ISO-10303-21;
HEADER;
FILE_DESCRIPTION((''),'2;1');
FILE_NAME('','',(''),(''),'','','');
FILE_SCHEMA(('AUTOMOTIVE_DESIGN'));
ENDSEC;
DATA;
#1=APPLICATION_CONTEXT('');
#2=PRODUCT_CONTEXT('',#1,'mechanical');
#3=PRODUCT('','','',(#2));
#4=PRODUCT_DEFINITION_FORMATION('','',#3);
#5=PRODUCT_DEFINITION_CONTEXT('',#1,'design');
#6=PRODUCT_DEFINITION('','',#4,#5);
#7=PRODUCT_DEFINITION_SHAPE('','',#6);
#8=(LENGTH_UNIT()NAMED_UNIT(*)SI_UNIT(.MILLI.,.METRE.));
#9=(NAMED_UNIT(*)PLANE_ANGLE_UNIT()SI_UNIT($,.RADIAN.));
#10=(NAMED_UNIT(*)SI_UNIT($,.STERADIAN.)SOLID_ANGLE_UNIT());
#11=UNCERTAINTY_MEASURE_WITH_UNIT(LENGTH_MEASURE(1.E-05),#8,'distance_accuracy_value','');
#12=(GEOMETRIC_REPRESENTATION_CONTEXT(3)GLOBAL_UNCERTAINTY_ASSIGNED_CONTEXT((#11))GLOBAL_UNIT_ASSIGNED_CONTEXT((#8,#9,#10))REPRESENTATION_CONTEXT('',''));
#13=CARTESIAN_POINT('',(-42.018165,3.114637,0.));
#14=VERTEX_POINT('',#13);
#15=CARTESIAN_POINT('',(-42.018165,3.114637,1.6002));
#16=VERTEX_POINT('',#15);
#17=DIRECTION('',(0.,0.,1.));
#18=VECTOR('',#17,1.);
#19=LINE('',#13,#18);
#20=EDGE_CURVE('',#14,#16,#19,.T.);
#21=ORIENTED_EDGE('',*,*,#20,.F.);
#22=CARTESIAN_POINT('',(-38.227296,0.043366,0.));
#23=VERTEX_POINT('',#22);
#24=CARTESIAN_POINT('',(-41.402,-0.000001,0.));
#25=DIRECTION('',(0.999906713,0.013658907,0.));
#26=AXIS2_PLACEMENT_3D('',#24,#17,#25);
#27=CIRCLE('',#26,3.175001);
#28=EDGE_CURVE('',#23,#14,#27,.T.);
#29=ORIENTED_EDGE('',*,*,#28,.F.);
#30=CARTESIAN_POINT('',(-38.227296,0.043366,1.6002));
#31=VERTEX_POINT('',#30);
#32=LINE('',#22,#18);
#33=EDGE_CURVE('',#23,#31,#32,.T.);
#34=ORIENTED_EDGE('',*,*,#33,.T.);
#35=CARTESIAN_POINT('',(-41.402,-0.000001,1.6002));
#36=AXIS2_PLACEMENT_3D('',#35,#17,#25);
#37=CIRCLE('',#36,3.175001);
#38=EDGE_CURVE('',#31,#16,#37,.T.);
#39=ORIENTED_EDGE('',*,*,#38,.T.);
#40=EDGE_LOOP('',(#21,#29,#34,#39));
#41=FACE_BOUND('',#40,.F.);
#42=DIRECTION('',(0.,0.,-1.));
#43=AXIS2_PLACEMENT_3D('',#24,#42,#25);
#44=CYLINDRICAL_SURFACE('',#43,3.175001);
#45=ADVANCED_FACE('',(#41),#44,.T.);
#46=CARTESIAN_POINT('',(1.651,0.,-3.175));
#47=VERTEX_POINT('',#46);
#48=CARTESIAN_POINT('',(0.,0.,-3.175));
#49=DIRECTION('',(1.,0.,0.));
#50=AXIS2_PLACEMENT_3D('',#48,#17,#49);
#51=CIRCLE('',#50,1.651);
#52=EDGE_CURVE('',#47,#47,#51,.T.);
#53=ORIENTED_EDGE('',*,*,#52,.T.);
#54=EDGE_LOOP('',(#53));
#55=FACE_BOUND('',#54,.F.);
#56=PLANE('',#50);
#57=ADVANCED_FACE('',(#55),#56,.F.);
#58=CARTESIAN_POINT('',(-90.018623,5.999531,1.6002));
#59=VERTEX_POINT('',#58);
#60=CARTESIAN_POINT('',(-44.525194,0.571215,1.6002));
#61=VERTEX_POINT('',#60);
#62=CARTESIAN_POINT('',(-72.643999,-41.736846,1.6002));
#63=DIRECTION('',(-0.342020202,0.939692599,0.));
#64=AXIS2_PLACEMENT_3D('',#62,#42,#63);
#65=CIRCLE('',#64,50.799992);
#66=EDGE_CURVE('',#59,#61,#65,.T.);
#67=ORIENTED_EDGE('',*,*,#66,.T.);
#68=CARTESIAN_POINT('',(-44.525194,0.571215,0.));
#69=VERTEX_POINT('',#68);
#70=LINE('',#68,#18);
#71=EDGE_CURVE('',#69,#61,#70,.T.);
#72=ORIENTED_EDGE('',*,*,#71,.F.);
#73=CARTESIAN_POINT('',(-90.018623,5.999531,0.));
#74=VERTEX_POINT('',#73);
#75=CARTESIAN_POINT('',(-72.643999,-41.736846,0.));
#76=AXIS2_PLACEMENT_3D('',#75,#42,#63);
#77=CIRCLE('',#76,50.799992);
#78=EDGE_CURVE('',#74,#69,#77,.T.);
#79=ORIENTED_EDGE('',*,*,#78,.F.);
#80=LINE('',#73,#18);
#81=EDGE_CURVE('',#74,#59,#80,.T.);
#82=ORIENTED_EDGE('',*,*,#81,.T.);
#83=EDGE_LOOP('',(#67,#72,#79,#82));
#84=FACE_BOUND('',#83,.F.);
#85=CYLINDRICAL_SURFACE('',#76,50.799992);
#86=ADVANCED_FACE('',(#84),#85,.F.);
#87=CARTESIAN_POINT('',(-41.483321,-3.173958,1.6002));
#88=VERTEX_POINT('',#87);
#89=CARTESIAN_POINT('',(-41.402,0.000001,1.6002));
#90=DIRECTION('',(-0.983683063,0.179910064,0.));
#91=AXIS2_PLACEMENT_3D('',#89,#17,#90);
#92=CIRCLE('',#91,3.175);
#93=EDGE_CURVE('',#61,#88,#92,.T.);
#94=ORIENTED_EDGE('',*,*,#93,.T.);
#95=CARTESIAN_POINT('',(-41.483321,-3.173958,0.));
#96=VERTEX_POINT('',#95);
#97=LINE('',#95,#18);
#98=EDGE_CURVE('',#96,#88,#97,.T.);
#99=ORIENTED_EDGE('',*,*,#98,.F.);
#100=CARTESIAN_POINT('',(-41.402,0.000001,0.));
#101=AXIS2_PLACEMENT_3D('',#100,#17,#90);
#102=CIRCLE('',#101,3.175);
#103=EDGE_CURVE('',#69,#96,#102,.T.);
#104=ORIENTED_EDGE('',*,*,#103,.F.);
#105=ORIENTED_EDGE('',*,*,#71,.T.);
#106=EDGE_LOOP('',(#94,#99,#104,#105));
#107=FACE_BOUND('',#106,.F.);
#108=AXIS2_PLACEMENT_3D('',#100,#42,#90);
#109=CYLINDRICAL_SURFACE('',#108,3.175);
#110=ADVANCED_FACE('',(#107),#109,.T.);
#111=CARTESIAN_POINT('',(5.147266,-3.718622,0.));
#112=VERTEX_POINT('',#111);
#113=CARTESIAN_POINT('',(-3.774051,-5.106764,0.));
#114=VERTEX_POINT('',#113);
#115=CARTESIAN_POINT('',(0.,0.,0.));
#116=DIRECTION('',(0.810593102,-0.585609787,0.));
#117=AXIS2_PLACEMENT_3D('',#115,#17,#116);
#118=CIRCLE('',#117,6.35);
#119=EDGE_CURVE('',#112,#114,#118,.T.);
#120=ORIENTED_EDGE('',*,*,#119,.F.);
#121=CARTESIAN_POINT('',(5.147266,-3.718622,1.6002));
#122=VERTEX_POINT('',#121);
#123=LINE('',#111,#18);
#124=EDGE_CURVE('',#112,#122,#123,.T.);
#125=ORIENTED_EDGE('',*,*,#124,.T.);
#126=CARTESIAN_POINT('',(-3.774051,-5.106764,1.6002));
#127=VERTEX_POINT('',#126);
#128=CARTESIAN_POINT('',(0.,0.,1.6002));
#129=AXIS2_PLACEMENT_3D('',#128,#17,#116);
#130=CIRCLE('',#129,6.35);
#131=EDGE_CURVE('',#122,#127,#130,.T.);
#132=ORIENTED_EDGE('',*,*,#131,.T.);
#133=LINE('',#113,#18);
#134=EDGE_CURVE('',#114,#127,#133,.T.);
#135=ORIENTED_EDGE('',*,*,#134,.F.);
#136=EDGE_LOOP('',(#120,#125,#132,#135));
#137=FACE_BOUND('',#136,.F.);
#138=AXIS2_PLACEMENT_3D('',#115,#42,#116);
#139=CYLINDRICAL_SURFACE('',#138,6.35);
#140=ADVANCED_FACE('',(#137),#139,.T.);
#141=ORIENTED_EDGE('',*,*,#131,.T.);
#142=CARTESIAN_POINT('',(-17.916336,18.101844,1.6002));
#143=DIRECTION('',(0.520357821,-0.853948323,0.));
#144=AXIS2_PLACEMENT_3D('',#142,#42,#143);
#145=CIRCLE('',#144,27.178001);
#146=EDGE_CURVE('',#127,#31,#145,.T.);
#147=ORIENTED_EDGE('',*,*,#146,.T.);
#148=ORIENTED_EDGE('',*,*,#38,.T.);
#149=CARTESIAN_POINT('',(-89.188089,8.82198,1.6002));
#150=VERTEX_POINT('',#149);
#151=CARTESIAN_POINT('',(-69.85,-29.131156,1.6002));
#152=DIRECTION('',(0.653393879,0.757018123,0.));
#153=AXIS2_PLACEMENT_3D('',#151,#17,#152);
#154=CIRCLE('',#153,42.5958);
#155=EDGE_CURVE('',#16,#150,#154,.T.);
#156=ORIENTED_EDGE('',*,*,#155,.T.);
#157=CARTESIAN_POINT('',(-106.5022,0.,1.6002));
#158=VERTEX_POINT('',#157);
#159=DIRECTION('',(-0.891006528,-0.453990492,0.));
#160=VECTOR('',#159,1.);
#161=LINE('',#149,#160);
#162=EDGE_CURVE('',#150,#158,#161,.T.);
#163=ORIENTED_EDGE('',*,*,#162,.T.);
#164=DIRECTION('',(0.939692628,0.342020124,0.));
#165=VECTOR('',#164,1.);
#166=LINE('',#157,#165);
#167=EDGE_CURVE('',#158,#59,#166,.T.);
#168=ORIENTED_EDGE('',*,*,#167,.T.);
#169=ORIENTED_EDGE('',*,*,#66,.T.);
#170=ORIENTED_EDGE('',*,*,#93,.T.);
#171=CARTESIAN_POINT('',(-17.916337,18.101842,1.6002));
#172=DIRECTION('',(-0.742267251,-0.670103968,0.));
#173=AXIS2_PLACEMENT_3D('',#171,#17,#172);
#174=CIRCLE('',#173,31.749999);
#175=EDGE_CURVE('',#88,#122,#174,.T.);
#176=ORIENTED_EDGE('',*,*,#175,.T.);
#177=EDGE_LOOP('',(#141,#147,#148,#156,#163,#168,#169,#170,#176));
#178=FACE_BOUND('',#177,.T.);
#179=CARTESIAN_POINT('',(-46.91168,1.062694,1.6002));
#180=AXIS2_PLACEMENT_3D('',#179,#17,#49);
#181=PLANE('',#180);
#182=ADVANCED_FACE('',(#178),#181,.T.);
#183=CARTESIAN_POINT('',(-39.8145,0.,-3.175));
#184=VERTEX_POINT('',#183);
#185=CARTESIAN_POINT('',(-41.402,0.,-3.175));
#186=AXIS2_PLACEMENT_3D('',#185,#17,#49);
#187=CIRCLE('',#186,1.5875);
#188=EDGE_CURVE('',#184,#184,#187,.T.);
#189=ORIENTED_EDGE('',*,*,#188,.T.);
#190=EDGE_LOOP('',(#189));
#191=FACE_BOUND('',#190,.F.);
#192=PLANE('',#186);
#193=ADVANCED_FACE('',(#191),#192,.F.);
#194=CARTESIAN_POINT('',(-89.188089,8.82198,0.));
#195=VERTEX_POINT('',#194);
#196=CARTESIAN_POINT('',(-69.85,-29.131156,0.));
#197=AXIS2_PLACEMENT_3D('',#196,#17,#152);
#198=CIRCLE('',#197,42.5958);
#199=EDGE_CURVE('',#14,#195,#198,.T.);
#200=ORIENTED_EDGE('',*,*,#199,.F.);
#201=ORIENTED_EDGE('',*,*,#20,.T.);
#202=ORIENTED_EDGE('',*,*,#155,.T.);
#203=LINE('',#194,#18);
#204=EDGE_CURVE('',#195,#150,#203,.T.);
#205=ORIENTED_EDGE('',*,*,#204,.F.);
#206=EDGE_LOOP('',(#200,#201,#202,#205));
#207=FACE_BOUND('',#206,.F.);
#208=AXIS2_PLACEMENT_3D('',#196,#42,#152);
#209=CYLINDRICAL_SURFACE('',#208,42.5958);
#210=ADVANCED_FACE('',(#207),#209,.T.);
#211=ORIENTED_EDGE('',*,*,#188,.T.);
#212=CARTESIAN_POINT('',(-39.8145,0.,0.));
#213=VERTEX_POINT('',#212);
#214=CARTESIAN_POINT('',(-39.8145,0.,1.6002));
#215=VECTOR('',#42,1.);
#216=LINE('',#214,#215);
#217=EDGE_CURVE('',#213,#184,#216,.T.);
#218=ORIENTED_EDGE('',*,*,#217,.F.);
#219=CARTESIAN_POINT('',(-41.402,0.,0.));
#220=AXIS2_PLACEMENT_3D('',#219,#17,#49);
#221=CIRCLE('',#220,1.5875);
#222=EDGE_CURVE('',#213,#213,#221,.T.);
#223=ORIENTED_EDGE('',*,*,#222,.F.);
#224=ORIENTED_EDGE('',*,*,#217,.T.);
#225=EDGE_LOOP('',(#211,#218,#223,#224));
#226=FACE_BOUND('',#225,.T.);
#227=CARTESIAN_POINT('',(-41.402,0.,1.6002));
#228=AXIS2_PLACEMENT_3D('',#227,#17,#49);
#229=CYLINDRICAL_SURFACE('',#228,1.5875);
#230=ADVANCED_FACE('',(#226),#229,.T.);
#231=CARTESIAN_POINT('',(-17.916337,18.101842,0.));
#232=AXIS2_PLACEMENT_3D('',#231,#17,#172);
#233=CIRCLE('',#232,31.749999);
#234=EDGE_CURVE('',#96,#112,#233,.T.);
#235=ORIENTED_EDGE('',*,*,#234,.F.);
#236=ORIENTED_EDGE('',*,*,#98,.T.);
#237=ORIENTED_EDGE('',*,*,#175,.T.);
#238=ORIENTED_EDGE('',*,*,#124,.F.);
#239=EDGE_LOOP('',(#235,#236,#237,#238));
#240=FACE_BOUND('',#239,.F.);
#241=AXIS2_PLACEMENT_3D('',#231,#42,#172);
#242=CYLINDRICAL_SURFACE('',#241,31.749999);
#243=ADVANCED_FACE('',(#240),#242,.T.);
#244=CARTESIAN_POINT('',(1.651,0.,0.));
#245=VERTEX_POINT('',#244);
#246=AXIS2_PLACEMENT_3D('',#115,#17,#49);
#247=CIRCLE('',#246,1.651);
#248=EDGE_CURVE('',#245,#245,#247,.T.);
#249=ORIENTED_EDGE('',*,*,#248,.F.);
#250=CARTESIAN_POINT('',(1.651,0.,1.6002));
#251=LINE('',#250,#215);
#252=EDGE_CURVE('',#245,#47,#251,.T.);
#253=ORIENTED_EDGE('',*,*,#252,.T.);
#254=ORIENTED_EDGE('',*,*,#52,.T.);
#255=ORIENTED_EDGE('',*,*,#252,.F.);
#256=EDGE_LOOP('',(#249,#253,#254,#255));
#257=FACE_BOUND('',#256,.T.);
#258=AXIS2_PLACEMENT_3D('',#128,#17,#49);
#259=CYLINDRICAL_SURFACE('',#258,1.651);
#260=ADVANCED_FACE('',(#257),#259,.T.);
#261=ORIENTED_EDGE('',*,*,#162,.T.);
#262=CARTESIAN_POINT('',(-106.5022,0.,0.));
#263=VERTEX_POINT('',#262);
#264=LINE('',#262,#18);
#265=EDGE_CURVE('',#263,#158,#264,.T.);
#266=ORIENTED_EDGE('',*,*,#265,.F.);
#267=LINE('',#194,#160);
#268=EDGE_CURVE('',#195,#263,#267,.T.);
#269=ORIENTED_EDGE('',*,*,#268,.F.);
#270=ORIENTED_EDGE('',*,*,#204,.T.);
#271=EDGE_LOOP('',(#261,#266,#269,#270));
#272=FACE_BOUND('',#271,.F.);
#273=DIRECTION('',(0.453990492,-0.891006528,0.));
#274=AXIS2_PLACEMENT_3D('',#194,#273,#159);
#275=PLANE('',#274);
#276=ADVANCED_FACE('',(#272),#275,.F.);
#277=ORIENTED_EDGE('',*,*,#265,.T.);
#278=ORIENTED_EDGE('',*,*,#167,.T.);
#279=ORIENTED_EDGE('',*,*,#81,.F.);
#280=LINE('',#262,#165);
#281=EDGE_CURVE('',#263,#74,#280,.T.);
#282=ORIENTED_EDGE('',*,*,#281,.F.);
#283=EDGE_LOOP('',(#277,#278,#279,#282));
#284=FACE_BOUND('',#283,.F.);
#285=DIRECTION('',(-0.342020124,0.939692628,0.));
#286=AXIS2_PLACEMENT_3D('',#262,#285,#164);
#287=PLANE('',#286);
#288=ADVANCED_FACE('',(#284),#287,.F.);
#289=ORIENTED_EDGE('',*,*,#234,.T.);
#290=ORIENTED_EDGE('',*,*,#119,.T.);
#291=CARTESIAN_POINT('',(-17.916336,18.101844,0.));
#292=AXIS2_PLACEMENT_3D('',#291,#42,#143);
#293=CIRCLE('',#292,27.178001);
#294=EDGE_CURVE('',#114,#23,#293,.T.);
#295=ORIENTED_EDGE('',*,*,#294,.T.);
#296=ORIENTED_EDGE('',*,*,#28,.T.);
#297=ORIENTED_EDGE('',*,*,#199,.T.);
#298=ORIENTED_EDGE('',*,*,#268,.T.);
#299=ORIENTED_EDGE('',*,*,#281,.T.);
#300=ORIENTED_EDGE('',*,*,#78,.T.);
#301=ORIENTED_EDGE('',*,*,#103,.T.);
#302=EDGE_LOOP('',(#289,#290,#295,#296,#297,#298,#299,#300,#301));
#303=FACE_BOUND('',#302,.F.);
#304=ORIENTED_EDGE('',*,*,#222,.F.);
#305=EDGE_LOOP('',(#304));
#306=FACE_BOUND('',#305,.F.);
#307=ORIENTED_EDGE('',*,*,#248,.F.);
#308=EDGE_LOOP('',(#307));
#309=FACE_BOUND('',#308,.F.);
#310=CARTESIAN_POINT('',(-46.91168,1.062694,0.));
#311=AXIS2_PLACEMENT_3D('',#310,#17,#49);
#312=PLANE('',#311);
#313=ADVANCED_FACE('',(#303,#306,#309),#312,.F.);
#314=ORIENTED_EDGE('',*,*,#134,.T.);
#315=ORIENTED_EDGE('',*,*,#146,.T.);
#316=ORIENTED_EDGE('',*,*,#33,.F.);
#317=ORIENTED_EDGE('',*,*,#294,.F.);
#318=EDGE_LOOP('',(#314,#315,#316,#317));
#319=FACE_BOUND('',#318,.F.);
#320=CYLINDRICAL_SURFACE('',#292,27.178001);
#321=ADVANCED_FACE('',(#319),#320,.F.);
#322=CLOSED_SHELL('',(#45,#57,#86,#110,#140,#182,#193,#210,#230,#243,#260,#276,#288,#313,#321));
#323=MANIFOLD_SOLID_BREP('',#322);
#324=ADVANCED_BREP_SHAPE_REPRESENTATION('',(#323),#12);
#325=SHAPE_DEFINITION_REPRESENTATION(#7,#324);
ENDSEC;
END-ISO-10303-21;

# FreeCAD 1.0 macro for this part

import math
import FreeCAD as App
import Part
import Sketcher

V = App.Vector
Q = App.Units.Quantity

doc = App.newDocument("Part")
params = doc.addObject("Spreadsheet::Sheet", "Params")
for row, (alias, value) in enumerate([
    ("sketch1_diameter", "0.13 in"),
    ("sketch1_radius", "1.07 in"),
    ("sketch1_radius2", "1.25 in"),
    ("sketch1_radius3", "0.25 in"),
    ("sketch1_diameter2", "0.125 in"),
    ("pad1_length", "0.063 in"),
    ("sketch2_diameter", "0.13 in"),
    ("sketch2_diameter2", "0.125 in"),
    ("pad2_length", "0.188 in"),
], start=1):
    params.set(f"A{row}", alias)
    params.set(f"B{row}", "=" + value)
    params.setAlias(f"B{row}", alias)

body = doc.addObject("PartDesign::Body", "Body")

# Sketch on XY plane
sketch1 = body.newObject("Sketcher::SketchObject", "Sketch")
sketch1.AttachmentSupport = (doc.getObject("XY_Plane"), [""])
sketch1.MapMode = "FlatFace"
sketch1.addGeometry(Part.ArcOfCircle(Part.Circle(V(-17.9, 18.1, 0), V(0, 0, 1), 27.2), math.radians(-138), math.radians(-59)), False)
sketch1.addGeometry(Part.ArcOfCircle(Part.Circle(V(-41.4, 0, 0), V(0, 0, 1), 3.2), math.radians(1), math.radians(101)), False)
sketch1.addGeometry(Part.ArcOfCircle(Part.Circle(V(-69.9, -29.1, 0), V(0, 0, 1), 42.6), math.radians(49), math.radians(117)), False)
sketch1.addGeometry(Part.LineSegment(V(-89.2, 8.8, 0), V(-106.5, 0, 0)), False)
sketch1.addGeometry(Part.LineSegment(V(-106.5, 0, 0), V(-90, 6, 0)), False)
sketch1.addGeometry(Part.ArcOfCircle(Part.Circle(V(-72.6, -41.7, 0), V(0, 0, 1), 50.8), math.radians(56), math.radians(110)), False)
sketch1.addGeometry(Part.ArcOfCircle(Part.Circle(V(-41.4, 0, 0), V(0, 0, 1), 3.2), math.radians(170), math.radians(269)), False)
sketch1.addGeometry(Part.ArcOfCircle(Part.Circle(V(-17.9, 18.1, 0), V(0, 0, 1), 31.7), math.radians(-138), math.radians(-43)), False)
sketch1.addGeometry(Part.ArcOfCircle(Part.Circle(V(0, 0, 0), V(0, 0, 1), 6.3), math.radians(-36), math.radians(234)), False)
sketch1.addGeometry(Part.Circle(V(-41.4, 0, 0), V(0, 0, 1), 1.6), False)
sketch1.addGeometry(Part.Circle(V(0, 0, 0), V(0, 0, 1), 1.7), False)
sketch1.addConstraint(Sketcher.Constraint("Coincident", 0, 1, 1, 1))
sketch1.addConstraint(Sketcher.Constraint("Coincident", 1, 2, 2, 1))
sketch1.addConstraint(Sketcher.Constraint("Tangent", 2, 2, 3, 1))
sketch1.addConstraint(Sketcher.Constraint("Coincident", 3, 2, 4, 1))
sketch1.addConstraint(Sketcher.Constraint("Tangent", 4, 2, 5, 2))
sketch1.addConstraint(Sketcher.Constraint("Coincident", 5, 1, 6, 1))
sketch1.addConstraint(Sketcher.Constraint("Coincident", 6, 2, 7, 1))
sketch1.addConstraint(Sketcher.Constraint("Coincident", 7, 2, 8, 1))
sketch1.addConstraint(Sketcher.Constraint("Coincident", 8, 2, 0, 2))
sketch1.addConstraint(Sketcher.Constraint("Coincident", 8, 3, -1, 1))
sketch1.addConstraint(Sketcher.Constraint("Coincident", 10, 3, -1, 1))
sketch1.addConstraint(Sketcher.Constraint("Coincident", 6, 3, 1, 3))
sketch1.addConstraint(Sketcher.Constraint("Coincident", 7, 3, 0, 3))
sketch1.addConstraint(Sketcher.Constraint("Coincident", 9, 3, 1, 3))
sketch1.addConstraint(Sketcher.Constraint("Equal", 1, 6))
sketch1.addConstraint(Sketcher.Constraint("PointOnObject", 1, 3, -1))
sketch1.addConstraint(Sketcher.Constraint("PointOnObject", 3, 2, -1))
sketch1.addConstraint(Sketcher.Constraint("Diameter", 10, Q("0.13 in")))
sketch1.addConstraint(Sketcher.Constraint("Radius", 0, Q("1.07 in")))
sketch1.addConstraint(Sketcher.Constraint("Radius", 7, Q("1.25 in")))
sketch1.addConstraint(Sketcher.Constraint("Radius", 8, Q("0.25 in")))
sketch1.addConstraint(Sketcher.Constraint("Diameter", 9, Q("0.125 in")))
sketch1.addConstraint(Sketcher.Constraint("Angle", 3, Q("-153 deg")))
sketch1.addConstraint(Sketcher.Constraint("Angle", 4, Q("19.999999 deg")))
sketch1.addConstraint(Sketcher.Constraint("Radius", 1, Q("0.125 in")))
sketch1.addConstraint(Sketcher.Constraint("Radius", 2, Q("1.677 in")))
sketch1.addConstraint(Sketcher.Constraint("DistanceX", 1, 3, -1, 1, Q("1.63 in")))
sketch1.addConstraint(Sketcher.Constraint("DistanceX", 2, 3, -1, 1, Q("2.75 in")))
sketch1.addConstraint(Sketcher.Constraint("DistanceX", 5, 3, -1, 1, Q("2.86 in")))
sketch1.addConstraint(Sketcher.Constraint("DistanceX", 3, 2, -1, 1, Q("4.193 in")))
sketch1.addConstraint(Sketcher.Constraint("Radius", 5, 50.799992))
sketch1.addConstraint(Sketcher.Constraint("DistanceY", 2, 3, 0, 3, 47.233))
sketch1.addConstraint(Sketcher.Constraint("DistanceX", 6, 2, -1, 1, 41.483321))
sketch1.setExpression("Constraints[17]", "Params.sketch1_diameter")
sketch1.setExpression("Constraints[18]", "Params.sketch1_radius")
sketch1.setExpression("Constraints[19]", "Params.sketch1_radius2")
sketch1.setExpression("Constraints[20]", "Params.sketch1_radius3")
sketch1.setExpression("Constraints[21]", "Params.sketch1_diameter2")
pad1 = body.newObject("PartDesign::Pad", "Pad")
pad1.Profile = sketch1
pad1.setExpression("Length", "Params.pad1_length")

# Sketch on XY plane
sketch2 = body.newObject("Sketcher::SketchObject", "Sketch001")
sketch2.AttachmentSupport = (doc.getObject("XY_Plane"), [""])
sketch2.MapMode = "FlatFace"
sketch2.AttachmentOffset = App.Placement(V(0, 0, 0.063 * 25.4), App.Rotation())
sketch2.addGeometry(Part.Circle(V(-41.4, 0, 0), V(0, 0, 1), 1.6), False)
sketch2.addGeometry(Part.Circle(V(0, 0, 0), V(0, 0, 1), 1.7), False)
sketch2.addConstraint(Sketcher.Constraint("Coincident", 1, 3, -1, 1))
sketch2.addConstraint(Sketcher.Constraint("PointOnObject", 0, 3, -1))
sketch2.addConstraint(Sketcher.Constraint("Diameter", 1, Q("0.13 in")))
sketch2.addConstraint(Sketcher.Constraint("Diameter", 0, Q("0.125 in")))
sketch2.addConstraint(Sketcher.Constraint("DistanceX", 0, 3, -1, 1, Q("1.63 in")))
sketch2.setExpression("Constraints[2]", "Params.sketch2_diameter")
sketch2.setExpression("Constraints[3]", "Params.sketch2_diameter2")
pad2 = body.newObject("PartDesign::Pad", "Pad001")
pad2.Profile = sketch2
pad2.setExpression("Length", "Params.pad2_length")
pad2.Reversed = True

doc.recompute()
